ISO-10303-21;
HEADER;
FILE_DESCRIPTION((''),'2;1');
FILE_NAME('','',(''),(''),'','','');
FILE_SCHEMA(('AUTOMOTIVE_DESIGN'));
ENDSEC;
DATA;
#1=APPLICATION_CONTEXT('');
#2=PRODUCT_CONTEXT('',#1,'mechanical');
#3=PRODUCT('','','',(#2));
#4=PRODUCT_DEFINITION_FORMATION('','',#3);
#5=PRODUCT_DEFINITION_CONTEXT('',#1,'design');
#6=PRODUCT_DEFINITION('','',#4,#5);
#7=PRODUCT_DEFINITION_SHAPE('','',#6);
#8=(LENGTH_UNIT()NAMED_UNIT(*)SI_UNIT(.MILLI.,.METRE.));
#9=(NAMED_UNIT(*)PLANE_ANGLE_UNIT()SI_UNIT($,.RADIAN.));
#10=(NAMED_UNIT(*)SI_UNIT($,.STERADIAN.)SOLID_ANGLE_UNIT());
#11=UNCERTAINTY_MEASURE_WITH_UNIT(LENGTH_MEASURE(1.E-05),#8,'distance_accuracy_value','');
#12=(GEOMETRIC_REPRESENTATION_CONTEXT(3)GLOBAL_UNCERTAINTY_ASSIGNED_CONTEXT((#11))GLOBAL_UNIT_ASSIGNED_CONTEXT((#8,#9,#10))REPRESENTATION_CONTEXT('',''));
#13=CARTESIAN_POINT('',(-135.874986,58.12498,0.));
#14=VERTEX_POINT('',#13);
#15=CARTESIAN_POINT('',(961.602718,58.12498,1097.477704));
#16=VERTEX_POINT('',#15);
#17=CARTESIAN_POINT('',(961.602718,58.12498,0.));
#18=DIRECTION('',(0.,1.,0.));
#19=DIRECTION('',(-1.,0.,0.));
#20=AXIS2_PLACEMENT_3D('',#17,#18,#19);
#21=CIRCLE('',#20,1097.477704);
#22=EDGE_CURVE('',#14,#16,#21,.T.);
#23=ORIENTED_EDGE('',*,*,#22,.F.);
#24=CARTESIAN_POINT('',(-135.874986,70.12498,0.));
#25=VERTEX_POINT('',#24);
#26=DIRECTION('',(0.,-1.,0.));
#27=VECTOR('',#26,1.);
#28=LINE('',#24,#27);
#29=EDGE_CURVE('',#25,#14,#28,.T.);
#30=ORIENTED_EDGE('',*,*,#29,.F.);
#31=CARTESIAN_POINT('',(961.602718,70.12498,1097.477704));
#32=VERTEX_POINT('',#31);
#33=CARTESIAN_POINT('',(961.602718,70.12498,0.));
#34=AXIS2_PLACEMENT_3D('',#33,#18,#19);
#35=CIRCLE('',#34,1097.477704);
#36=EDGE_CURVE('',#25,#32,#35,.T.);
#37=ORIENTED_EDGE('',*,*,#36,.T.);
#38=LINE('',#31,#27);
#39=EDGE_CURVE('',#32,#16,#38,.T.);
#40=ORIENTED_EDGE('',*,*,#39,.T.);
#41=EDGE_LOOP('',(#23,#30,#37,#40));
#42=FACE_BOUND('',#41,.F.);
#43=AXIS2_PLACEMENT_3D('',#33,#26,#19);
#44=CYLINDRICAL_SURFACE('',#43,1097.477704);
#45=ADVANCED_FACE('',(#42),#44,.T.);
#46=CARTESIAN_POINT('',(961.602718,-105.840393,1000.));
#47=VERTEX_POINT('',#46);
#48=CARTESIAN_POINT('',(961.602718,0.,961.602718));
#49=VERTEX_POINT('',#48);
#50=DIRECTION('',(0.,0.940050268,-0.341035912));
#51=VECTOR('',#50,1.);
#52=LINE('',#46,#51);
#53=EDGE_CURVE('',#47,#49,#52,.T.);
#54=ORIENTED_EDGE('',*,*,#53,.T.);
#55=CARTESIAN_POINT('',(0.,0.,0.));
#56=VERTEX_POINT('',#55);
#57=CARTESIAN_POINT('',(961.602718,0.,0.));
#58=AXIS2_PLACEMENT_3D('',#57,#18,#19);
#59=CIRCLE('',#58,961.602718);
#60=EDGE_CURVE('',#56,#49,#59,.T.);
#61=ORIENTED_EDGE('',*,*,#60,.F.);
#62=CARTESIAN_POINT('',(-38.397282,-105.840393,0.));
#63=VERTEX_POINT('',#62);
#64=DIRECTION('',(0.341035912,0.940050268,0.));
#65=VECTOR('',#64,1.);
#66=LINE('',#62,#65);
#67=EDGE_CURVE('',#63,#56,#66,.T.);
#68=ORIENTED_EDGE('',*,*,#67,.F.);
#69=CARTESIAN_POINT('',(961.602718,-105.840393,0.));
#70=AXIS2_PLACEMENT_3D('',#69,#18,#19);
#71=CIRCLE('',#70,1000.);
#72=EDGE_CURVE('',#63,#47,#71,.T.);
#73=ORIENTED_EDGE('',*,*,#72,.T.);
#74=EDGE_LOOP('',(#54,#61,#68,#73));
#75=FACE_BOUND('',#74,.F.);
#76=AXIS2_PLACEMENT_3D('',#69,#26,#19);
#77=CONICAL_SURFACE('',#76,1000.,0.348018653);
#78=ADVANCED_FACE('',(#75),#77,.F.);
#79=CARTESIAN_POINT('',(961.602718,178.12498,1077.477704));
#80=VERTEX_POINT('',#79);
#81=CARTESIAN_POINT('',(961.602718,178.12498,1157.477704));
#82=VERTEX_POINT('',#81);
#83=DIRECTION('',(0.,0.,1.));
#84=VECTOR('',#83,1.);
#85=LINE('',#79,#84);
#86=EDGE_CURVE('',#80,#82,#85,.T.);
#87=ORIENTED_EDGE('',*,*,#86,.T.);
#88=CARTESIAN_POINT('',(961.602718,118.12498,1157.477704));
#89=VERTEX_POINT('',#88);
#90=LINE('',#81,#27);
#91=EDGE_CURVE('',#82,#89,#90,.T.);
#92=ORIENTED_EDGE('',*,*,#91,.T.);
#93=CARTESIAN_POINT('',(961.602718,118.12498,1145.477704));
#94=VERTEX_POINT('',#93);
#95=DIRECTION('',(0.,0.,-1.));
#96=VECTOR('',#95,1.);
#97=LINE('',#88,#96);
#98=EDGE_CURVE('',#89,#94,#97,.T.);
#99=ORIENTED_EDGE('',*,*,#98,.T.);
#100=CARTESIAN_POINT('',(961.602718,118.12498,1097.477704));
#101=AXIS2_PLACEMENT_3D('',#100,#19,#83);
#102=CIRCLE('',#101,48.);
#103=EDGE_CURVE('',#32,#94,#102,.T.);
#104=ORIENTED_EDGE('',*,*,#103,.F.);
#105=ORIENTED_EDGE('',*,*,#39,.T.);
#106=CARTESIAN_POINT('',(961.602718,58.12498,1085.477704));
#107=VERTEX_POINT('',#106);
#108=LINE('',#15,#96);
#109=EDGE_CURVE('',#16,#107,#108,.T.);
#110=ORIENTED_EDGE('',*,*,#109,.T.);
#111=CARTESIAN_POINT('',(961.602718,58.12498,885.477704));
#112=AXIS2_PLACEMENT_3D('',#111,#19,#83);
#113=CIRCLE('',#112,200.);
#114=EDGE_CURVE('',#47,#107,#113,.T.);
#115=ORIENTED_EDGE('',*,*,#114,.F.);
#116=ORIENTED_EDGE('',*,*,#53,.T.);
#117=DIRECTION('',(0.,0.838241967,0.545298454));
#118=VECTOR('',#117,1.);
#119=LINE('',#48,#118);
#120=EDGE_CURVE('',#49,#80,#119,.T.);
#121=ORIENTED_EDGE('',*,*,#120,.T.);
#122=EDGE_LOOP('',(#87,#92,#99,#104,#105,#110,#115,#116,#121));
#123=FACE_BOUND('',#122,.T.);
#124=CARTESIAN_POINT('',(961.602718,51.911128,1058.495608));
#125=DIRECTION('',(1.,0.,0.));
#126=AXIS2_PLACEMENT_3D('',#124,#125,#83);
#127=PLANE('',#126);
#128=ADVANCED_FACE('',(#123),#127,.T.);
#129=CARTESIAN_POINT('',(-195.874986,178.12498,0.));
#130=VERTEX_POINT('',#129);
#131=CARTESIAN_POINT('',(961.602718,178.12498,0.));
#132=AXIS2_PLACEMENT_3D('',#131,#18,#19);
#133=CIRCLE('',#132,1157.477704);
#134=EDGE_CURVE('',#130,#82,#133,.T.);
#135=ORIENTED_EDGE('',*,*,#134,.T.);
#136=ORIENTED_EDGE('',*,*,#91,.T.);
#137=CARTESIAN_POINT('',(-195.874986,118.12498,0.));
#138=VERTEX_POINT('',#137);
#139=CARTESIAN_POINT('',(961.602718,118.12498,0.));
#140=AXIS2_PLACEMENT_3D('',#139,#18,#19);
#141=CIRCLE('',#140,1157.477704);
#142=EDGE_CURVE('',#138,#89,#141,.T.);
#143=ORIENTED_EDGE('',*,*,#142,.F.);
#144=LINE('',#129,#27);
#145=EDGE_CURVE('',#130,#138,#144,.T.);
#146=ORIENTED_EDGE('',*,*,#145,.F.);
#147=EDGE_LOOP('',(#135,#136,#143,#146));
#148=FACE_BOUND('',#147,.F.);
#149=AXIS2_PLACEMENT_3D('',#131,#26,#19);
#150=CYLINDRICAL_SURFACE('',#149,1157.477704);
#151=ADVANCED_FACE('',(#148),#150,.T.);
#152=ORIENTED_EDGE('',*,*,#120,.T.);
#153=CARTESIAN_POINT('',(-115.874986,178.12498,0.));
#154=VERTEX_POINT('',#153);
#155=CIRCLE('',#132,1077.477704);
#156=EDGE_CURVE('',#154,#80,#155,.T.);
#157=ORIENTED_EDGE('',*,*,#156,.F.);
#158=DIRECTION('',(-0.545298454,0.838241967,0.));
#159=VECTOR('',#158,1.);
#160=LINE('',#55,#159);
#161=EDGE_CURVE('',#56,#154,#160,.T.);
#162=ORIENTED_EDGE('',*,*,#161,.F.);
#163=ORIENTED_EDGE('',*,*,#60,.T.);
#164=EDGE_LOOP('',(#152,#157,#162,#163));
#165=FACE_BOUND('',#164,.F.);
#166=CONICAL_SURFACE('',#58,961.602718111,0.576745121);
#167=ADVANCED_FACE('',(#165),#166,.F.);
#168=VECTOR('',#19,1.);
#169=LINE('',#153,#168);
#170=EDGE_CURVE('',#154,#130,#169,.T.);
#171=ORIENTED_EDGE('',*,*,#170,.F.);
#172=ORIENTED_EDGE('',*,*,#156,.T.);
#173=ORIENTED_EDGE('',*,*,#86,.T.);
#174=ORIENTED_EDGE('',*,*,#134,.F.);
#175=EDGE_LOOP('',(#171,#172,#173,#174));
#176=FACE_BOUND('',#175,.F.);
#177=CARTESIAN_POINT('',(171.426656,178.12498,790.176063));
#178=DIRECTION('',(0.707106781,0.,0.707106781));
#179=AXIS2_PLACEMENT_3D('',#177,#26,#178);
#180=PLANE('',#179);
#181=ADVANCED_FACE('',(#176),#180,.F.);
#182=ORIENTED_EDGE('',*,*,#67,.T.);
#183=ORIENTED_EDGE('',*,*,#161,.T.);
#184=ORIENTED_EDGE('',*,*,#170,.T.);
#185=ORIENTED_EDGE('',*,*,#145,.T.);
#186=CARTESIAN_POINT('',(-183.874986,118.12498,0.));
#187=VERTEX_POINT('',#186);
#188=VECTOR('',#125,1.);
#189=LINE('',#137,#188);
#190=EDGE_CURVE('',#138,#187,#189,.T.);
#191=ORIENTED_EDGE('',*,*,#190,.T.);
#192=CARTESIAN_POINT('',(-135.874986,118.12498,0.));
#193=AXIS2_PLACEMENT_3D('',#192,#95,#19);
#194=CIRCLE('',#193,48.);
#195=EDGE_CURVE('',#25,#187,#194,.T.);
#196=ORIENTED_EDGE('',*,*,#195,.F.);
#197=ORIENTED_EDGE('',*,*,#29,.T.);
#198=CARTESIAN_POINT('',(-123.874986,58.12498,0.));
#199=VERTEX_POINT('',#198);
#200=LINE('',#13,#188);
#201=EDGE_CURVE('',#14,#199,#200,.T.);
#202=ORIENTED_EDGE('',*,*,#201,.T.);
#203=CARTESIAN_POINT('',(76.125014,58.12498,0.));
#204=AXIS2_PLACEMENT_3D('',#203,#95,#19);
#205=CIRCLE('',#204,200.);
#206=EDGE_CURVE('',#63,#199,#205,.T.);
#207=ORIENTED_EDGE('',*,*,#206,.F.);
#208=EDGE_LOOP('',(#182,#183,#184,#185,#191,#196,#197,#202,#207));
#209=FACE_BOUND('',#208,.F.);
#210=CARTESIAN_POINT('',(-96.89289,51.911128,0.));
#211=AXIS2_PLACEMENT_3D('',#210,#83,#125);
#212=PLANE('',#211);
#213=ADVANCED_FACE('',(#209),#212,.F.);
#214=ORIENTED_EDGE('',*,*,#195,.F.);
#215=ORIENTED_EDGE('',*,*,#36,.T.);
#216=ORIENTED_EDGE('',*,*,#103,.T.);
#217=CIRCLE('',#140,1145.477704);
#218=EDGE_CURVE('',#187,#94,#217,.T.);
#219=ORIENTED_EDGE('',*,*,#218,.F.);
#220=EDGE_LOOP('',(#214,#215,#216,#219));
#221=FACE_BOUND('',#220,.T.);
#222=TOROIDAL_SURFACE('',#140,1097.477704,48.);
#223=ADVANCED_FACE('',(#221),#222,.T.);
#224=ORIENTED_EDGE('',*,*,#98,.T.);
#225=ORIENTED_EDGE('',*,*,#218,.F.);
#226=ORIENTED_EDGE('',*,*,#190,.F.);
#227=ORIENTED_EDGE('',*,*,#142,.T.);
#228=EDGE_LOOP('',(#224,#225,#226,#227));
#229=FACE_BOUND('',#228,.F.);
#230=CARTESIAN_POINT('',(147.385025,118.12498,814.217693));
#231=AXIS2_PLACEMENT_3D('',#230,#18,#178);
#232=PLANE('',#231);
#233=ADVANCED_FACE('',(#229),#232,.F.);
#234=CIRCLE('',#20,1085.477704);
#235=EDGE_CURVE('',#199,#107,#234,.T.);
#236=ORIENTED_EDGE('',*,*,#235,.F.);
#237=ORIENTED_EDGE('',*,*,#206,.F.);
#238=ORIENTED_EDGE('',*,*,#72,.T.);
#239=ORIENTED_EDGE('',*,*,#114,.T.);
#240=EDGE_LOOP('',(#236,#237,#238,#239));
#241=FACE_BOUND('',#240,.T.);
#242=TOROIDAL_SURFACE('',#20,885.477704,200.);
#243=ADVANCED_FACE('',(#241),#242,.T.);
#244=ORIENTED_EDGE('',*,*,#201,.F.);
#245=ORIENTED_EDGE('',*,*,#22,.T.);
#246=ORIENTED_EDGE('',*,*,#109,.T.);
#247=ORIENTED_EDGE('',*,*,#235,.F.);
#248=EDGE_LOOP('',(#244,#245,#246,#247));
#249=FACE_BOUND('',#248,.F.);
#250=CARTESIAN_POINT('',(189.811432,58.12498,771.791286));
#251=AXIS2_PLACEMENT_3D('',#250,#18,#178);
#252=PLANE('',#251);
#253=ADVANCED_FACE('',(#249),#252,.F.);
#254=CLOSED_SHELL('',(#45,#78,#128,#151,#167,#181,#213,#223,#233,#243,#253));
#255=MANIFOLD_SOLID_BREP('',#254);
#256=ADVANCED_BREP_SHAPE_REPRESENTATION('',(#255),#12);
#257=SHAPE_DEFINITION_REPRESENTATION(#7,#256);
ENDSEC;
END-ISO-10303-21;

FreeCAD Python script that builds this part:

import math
import FreeCAD as App
import Part
import Sketcher
Q = App.Units.Quantity

doc = App.newDocument("Part")
body = doc.addObject("PartDesign::Body", "Body")

# Sketch on XY plane
sketch1 = doc.addObject("Sketcher::SketchObject", "Sketch")
body.addObject(sketch1)
sketch1.AttachmentSupport = (doc.XY_Plane, [""])
sketch1.MapMode = "FlatFace"
sketch1.addGeometry(Part.LineSegment(App.Vector(-38, -106, 0), App.Vector(0, 0, 0)), False)
sketch1.addGeometry(Part.LineSegment(App.Vector(0, 0, 0), App.Vector(-116, 178, 0)), False)
sketch1.addGeometry(Part.LineSegment(App.Vector(-116, 178, 0), App.Vector(-196, 178, 0)), False)
sketch1.addGeometry(Part.LineSegment(App.Vector(-196, 178, 0), App.Vector(-196, 118, 0)), False)
sketch1.addGeometry(Part.LineSegment(App.Vector(-196, 118, 0), App.Vector(-184, 118, 0)), False)
sketch1.addGeometry(Part.ArcOfCircle(Part.Circle(App.Vector(-136, 118, 0), App.Vector(0, 0, 1), 48), math.radians(180), math.radians(270)), False)
sketch1.addGeometry(Part.LineSegment(App.Vector(-136, 70, 0), App.Vector(-136, 58, 0)), False)
sketch1.addGeometry(Part.LineSegment(App.Vector(-136, 58, 0), App.Vector(-124, 58, 0)), False)
sketch1.addGeometry(Part.ArcOfCircle(Part.Circle(App.Vector(76, 58, 0), App.Vector(0, 0, 1), 200), math.radians(180), math.radians(235)), False)
sketch1.addConstraint(Sketcher.Constraint("Coincident", 0, 2, 1, 1))
sketch1.addConstraint(Sketcher.Constraint("Coincident", 1, 2, 2, 1))
sketch1.addConstraint(Sketcher.Constraint("Coincident", 2, 2, 3, 1))
sketch1.addConstraint(Sketcher.Constraint("Coincident", 3, 2, 4, 1))
sketch1.addConstraint(Sketcher.Constraint("Coincident", 4, 2, 5, 1))
sketch1.addConstraint(Sketcher.Constraint("Coincident", 5, 2, 6, 1))
sketch1.addConstraint(Sketcher.Constraint("Coincident", 6, 2, 7, 1))
sketch1.addConstraint(Sketcher.Constraint("Coincident", 7, 2, 8, 1))
sketch1.addConstraint(Sketcher.Constraint("Coincident", 8, 2, 0, 1))
sketch1.addConstraint(Sketcher.Constraint("Horizontal", 2))
sketch1.addConstraint(Sketcher.Constraint("Vertical", 3))
sketch1.addConstraint(Sketcher.Constraint("Horizontal", 4))
sketch1.addConstraint(Sketcher.Constraint("Vertical", 6))
sketch1.addConstraint(Sketcher.Constraint("Horizontal", 7))
sketch1.addConstraint(Sketcher.Constraint("Coincident", 0, 2, -1, 1))
sketch1.addConstraint(Sketcher.Constraint("Horizontal", 5, 3, 3, 2))
sketch1.addConstraint(Sketcher.Constraint("Horizontal", 8, 3, 6, 2))
sketch1.addConstraint(Sketcher.Constraint("Equal", 4, 7))
sketch1.addConstraint(Sketcher.Constraint("Equal", 7, 6))
sketch1.addConstraint(Sketcher.Constraint("Radius", 5, Q("48 mm")))
sketch1.addConstraint(Sketcher.Constraint("Radius", 8, Q("200 mm")))
sketch1.addConstraint(Sketcher.Constraint("DistanceX", 2, 2, 2, 1, Q("80 mm")))
sketch1.addConstraint(Sketcher.Constraint("DistanceX", 4, 1, 4, 2, Q("12 mm")))
sketch1.addConstraint(Sketcher.Constraint("DistanceY", 3, 2, 3, 1, Q("60 mm")))
sketch1.addConstraint(Sketcher.Constraint("DistanceX", 5, 3, 8, 3, Q("212 mm")))
sketch1.addConstraint(Sketcher.Constraint("Angle", 0, Q("70.06 deg")))
sketch1.addConstraint(Sketcher.Constraint("DistanceY", -1, 1, 5, 3, Q("118.12498 mm")))
sketch1.addConstraint(Sketcher.Constraint("Distance", 0, Q("112.590142 mm")))

# Sketch on XZ plane
sketch2 = doc.addObject("Sketcher::SketchObject", "Sketch001")
body.addObject(sketch2)
sketch2.AttachmentSupport = (doc.XZ_Plane, [""])
sketch2.MapMode = "FlatFace"
sketch2.AttachmentOffset = App.Placement(App.Vector(0, 0, 105.840393), App.Rotation())
sketch2.addGeometry(Part.ArcOfCircle(Part.Circle(App.Vector(962, 0, 0), App.Vector(0, 0, 1), 1000), math.radians(90), math.radians(180)), False)
sketch2.addConstraint(Sketcher.Constraint("PointOnObject", 0, 3, -1))
sketch2.addConstraint(Sketcher.Constraint("PointOnObject", 0, 2, -1))
sketch2.addConstraint(Sketcher.Constraint("Radius", 0, Q("1000 mm")))
sketch2.addConstraint(Sketcher.Constraint("DistanceX", 0, 2, 0, 1, Q("1000 mm")))
sketch2.addConstraint(Sketcher.Constraint("DistanceX", -1, 1, 0, 3, Q("961.602718 mm")))
doc.recompute()

additivepipe = doc.addObject("PartDesign::AdditivePipe", "AdditivePipe")
body.addObject(additivepipe)
additivepipe.Profile = sketch1
additivepipe.Spine = (sketch2, ["Edge1"])

doc.recompute()
